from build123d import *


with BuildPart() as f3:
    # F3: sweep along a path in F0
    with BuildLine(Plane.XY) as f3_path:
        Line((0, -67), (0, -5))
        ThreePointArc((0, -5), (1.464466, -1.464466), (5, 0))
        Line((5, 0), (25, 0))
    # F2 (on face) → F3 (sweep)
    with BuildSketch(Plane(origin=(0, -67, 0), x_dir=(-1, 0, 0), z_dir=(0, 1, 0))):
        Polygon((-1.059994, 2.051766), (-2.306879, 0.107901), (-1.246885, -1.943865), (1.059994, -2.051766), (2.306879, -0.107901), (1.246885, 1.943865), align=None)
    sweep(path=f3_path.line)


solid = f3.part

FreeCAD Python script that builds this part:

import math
import FreeCAD as App
import Part
import Sketcher

V = App.Vector
Q = App.Units.Quantity


def add_polygon(sketch, points):
    """Adds a closed chain of lines whose ends are joined by coincident constraints."""
    first, n = sketch.GeometryCount, len(points)
    for a, b in zip(points, points[1:] + points[:1]):
        sketch.addGeometry(Part.LineSegment(App.Vector(*a, 0), App.Vector(*b, 0)), False)
    for i in range(n):
        sketch.addConstraint(Sketcher.Constraint("Coincident", first + i, 2, first + (i + 1) % n, 1))

doc = App.newDocument("Part")
params = doc.addObject("Spreadsheet::Sheet", "Params")
for row, (alias, value) in enumerate([
    ("sketch2_radius", "5 mm"),
    ("sketch2_width", "20 mm"),
    ("sketch2_height", "62 mm"),
], start=1):
    params.set(f"A{row}", alias)
    params.set(f"B{row}", "=" + value)
    params.setAlias(f"B{row}", alias)

body = doc.addObject("PartDesign::Body", "Body")

# Sketch on XZ plane
sketch1 = body.newObject("Sketcher::SketchObject", "Sketch")
sketch1.AttachmentSupport = (doc.getObject("XZ_Plane"), [""])
sketch1.MapMode = "FlatFace"
sketch1.AttachmentOffset = App.Placement(V(0, 0, 67), App.Rotation())
add_polygon(sketch1, [(1.059994, 2.051766), (2.306879, 0.107901), (1.246885, -1.943865), (-1.059994, -2.051766), (-2.306879, -0.107901), (-1.246885, 1.943865)])  # lines 0-5
sketch1.addConstraint(Sketcher.Constraint("Symmetric", 0, 2, 3, 2, -1, 1))
sketch1.addConstraint(Sketcher.Constraint("Symmetric", 1, 2, 4, 2, -1, 1))
sketch1.addConstraint(Sketcher.Constraint("Symmetric", 2, 2, 5, 2, -1, 1))
sketch1.addConstraint(Sketcher.Constraint("Equal", 0, 1))
sketch1.addConstraint(Sketcher.Constraint("Equal", 1, 2))
sketch1.addConstraint(Sketcher.Constraint("Distance", 0, Q("2.309401 mm")))
sketch1.addConstraint(Sketcher.Constraint("DistanceY", -1, 1, 0, 2, Q("0.107901 mm")))
sketch1.addConstraint(Sketcher.Constraint("DistanceY", 2, 2, 1, 2, Q("0.107901 mm")))
sketch1.addConstraint(Sketcher.Constraint("DistanceX", -1, 1, 0, 2, Q("2.306879 mm")))

# Sketch on XY plane
sketch2 = body.newObject("Sketcher::SketchObject", "Sketch001")
sketch2.AttachmentSupport = (doc.getObject("XY_Plane"), [""])
sketch2.MapMode = "FlatFace"
sketch2.addGeometry(Part.LineSegment(V(0, -67, 0), V(0, -5, 0)), False)
sketch2.addGeometry(Part.ArcOfCircle(Part.Circle(V(5, -5, 0), V(0, 0, 1), 5), math.radians(89.999996), math.radians(180.000004)), False)
sketch2.addGeometry(Part.LineSegment(V(5, 0, 0), V(25, 0, 0)), False)
sketch2.addConstraint(Sketcher.Constraint("Tangent", 0, 2, 1, 2))
sketch2.addConstraint(Sketcher.Constraint("Tangent", 1, 1, 2, 1))
sketch2.addConstraint(Sketcher.Constraint("Vertical", 0))
sketch2.addConstraint(Sketcher.Constraint("Horizontal", 2))
sketch2.addConstraint(Sketcher.Constraint("PointOnObject", 0, 1, -2))
sketch2.addConstraint(Sketcher.Constraint("PointOnObject", 1, 1, -1))
sketch2.addConstraint(Sketcher.Constraint("Radius", 1, Q("5 mm")))
sketch2.addConstraint(Sketcher.Constraint("DistanceX", 2, 1, 2, 2, Q("20 mm")))
sketch2.addConstraint(Sketcher.Constraint("DistanceY", 0, 1, 0, 2, Q("62 mm")))
sketch2.setExpression("Constraints[6]", "Params.sketch2_radius")
sketch2.setExpression("Constraints[7]", "Params.sketch2_width")
sketch2.setExpression("Constraints[8]", "Params.sketch2_height")
doc.recompute()

additivepipe = body.newObject("PartDesign::AdditivePipe", "AdditivePipe")
additivepipe.Profile = sketch1
additivepipe.Spine = (sketch2, ["Edge1", "Edge2", "Edge3"])

doc.recompute()
